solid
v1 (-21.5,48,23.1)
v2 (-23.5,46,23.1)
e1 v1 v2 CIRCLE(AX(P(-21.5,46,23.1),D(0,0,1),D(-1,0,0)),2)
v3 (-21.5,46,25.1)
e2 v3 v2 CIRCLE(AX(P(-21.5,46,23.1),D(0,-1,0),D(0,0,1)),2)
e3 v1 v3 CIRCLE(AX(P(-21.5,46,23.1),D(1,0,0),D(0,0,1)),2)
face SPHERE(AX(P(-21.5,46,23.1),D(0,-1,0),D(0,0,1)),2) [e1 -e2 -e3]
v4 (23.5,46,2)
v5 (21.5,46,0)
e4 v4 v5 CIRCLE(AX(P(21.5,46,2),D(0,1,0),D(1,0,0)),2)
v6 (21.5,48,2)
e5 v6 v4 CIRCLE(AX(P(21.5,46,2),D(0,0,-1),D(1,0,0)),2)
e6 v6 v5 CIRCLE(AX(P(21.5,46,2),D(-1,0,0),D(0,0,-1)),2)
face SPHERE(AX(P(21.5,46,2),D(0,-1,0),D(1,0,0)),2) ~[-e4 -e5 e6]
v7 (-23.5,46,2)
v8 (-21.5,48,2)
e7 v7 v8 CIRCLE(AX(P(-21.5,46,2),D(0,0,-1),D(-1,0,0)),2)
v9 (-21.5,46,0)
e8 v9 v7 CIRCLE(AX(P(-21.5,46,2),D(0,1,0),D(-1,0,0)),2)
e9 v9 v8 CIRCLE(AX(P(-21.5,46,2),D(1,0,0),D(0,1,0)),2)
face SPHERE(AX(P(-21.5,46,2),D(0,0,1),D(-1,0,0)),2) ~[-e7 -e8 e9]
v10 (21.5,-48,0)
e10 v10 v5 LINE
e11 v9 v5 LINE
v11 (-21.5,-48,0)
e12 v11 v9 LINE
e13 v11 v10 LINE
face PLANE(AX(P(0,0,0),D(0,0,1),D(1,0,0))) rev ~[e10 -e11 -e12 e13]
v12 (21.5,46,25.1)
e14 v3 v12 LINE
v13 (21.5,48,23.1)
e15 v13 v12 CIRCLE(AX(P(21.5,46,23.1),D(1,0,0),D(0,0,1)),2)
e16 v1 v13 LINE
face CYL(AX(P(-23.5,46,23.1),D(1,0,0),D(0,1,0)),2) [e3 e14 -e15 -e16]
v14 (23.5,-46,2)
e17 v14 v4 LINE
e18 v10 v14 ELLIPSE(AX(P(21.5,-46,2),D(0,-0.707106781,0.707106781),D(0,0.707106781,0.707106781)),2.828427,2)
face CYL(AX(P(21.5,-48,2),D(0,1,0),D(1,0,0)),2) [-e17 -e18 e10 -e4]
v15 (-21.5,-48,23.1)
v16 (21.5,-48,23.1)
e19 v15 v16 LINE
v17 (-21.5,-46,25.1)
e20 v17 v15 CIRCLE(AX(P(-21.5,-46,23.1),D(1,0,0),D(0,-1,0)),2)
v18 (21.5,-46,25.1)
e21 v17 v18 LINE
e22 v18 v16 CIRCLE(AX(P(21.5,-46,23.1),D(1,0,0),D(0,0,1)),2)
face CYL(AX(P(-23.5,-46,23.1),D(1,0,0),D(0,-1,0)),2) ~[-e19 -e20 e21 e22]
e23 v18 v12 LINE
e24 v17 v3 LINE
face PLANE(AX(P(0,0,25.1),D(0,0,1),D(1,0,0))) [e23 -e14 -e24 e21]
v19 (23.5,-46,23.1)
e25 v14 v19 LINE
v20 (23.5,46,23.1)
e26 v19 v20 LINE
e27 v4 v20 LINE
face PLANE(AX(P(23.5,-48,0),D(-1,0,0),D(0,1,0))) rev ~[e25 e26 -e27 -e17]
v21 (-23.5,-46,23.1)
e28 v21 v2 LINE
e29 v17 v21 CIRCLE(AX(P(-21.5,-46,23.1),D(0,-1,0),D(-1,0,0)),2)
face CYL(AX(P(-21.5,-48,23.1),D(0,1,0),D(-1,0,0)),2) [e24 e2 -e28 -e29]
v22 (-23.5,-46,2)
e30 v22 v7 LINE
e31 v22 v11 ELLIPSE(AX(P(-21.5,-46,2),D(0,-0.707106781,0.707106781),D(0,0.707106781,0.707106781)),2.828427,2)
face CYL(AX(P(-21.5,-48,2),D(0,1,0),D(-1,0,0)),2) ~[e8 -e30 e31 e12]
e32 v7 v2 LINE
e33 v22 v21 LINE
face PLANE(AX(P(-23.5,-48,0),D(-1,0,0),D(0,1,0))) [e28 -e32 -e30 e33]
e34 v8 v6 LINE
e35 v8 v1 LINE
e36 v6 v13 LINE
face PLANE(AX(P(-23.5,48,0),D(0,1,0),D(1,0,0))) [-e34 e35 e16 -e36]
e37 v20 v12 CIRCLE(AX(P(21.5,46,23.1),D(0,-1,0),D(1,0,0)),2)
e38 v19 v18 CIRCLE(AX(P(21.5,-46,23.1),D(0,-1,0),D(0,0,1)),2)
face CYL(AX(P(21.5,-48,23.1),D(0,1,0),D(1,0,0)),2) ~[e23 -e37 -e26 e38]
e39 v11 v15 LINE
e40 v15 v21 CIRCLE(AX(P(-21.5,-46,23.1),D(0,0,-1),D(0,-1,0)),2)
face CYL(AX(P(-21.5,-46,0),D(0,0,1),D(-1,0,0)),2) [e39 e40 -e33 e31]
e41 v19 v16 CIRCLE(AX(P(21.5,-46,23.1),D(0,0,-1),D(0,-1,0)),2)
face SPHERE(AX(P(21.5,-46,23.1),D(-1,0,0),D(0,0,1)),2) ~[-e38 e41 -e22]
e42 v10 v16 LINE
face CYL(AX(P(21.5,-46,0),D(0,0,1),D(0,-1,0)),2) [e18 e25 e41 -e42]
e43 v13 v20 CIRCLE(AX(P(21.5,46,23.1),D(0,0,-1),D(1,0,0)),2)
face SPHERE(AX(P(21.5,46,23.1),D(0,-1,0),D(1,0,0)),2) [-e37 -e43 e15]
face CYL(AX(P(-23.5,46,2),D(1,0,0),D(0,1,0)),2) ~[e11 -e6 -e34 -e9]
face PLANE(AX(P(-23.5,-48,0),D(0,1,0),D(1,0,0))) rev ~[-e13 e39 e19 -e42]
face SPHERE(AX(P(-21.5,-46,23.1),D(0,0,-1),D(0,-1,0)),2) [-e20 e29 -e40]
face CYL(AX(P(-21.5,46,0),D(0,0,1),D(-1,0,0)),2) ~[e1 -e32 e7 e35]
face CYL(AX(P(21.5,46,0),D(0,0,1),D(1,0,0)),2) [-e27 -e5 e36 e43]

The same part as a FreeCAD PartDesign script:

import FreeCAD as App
import Part
import Sketcher
from FreeCAD import Vector


def edges_at(feature, points):
    """Names of the edges that pass closest to the given points."""
    edges = feature.Shape.Edges
    near = lambda p: min(range(len(edges)), key=lambda i: edges[i].distToShape(Part.Vertex(*p))[0])
    return sorted({f"Edge{near(p) + 1}" for p in points})


def add_polygon(sketch, points):
    """Adds a closed chain of lines whose ends are joined by coincident constraints."""
    first, n = sketch.GeometryCount, len(points)
    for a, b in zip(points, points[1:] + points[:1]):
        sketch.addGeometry(Part.LineSegment(App.Vector(*a, 0), App.Vector(*b, 0)), False)
    for i in range(n):
        sketch.addConstraint(Sketcher.Constraint("Coincident", first + i, 2, first + (i + 1) % n, 1))

doc = App.newDocument("Part")
body = doc.addObject("PartDesign::Body", "Body")

# Sketch on XY plane
sketch1 = doc.addObject("Sketcher::SketchObject", "Sketch")
body.addObject(sketch1)
sketch1.AttachmentSupport = (doc.XY_Plane, [""])
sketch1.MapMode = "FlatFace"
add_polygon(sketch1, [(-24, 48), (-24, -48), (24, -48), (24, 48)])  # lines 0-3
sketch1.addConstraint(Sketcher.Constraint("Vertical", 0))
sketch1.addConstraint(Sketcher.Constraint("Horizontal", 1))
sketch1.addConstraint(Sketcher.Constraint("Vertical", 2))
sketch1.addConstraint(Sketcher.Constraint("Horizontal", 3))
sketch1.addConstraint(Sketcher.Constraint("Symmetric", 0, 2, 2, 2, -1, 1))
sketch1.addConstraint(Sketcher.Constraint("DistanceX", 1, 1, 1, 2, 47.0))
sketch1.addConstraint(Sketcher.Constraint("DistanceY", 0, 2, 0, 1, 96.0))
pad1 = doc.addObject("PartDesign::Pad", "Pad")
body.addObject(pad1)
pad1.Profile = sketch1
pad1.Length = 25.1
doc.recompute()

fillet = doc.addObject("PartDesign::Fillet", "Fillet")
body.addObject(fillet)
fillet.Base = (pad1, edges_at(pad1, [
    (-23.5, -48, 12.55),
    (0, -48, 25.1),
    (-23.5, 0, 25.1),
    (23.5, 0, 25.1),
    (23.5, -48, 12.55),
    (23.5, 0, 0),
    (23.5, 48, 12.55),
    (0, 48, 25.1),
    (-23.5, 48, 12.55),
    (-23.5, 0, 0),
    (0, 48, 0),
]))
fillet.Radius = 2

doc.recompute()
